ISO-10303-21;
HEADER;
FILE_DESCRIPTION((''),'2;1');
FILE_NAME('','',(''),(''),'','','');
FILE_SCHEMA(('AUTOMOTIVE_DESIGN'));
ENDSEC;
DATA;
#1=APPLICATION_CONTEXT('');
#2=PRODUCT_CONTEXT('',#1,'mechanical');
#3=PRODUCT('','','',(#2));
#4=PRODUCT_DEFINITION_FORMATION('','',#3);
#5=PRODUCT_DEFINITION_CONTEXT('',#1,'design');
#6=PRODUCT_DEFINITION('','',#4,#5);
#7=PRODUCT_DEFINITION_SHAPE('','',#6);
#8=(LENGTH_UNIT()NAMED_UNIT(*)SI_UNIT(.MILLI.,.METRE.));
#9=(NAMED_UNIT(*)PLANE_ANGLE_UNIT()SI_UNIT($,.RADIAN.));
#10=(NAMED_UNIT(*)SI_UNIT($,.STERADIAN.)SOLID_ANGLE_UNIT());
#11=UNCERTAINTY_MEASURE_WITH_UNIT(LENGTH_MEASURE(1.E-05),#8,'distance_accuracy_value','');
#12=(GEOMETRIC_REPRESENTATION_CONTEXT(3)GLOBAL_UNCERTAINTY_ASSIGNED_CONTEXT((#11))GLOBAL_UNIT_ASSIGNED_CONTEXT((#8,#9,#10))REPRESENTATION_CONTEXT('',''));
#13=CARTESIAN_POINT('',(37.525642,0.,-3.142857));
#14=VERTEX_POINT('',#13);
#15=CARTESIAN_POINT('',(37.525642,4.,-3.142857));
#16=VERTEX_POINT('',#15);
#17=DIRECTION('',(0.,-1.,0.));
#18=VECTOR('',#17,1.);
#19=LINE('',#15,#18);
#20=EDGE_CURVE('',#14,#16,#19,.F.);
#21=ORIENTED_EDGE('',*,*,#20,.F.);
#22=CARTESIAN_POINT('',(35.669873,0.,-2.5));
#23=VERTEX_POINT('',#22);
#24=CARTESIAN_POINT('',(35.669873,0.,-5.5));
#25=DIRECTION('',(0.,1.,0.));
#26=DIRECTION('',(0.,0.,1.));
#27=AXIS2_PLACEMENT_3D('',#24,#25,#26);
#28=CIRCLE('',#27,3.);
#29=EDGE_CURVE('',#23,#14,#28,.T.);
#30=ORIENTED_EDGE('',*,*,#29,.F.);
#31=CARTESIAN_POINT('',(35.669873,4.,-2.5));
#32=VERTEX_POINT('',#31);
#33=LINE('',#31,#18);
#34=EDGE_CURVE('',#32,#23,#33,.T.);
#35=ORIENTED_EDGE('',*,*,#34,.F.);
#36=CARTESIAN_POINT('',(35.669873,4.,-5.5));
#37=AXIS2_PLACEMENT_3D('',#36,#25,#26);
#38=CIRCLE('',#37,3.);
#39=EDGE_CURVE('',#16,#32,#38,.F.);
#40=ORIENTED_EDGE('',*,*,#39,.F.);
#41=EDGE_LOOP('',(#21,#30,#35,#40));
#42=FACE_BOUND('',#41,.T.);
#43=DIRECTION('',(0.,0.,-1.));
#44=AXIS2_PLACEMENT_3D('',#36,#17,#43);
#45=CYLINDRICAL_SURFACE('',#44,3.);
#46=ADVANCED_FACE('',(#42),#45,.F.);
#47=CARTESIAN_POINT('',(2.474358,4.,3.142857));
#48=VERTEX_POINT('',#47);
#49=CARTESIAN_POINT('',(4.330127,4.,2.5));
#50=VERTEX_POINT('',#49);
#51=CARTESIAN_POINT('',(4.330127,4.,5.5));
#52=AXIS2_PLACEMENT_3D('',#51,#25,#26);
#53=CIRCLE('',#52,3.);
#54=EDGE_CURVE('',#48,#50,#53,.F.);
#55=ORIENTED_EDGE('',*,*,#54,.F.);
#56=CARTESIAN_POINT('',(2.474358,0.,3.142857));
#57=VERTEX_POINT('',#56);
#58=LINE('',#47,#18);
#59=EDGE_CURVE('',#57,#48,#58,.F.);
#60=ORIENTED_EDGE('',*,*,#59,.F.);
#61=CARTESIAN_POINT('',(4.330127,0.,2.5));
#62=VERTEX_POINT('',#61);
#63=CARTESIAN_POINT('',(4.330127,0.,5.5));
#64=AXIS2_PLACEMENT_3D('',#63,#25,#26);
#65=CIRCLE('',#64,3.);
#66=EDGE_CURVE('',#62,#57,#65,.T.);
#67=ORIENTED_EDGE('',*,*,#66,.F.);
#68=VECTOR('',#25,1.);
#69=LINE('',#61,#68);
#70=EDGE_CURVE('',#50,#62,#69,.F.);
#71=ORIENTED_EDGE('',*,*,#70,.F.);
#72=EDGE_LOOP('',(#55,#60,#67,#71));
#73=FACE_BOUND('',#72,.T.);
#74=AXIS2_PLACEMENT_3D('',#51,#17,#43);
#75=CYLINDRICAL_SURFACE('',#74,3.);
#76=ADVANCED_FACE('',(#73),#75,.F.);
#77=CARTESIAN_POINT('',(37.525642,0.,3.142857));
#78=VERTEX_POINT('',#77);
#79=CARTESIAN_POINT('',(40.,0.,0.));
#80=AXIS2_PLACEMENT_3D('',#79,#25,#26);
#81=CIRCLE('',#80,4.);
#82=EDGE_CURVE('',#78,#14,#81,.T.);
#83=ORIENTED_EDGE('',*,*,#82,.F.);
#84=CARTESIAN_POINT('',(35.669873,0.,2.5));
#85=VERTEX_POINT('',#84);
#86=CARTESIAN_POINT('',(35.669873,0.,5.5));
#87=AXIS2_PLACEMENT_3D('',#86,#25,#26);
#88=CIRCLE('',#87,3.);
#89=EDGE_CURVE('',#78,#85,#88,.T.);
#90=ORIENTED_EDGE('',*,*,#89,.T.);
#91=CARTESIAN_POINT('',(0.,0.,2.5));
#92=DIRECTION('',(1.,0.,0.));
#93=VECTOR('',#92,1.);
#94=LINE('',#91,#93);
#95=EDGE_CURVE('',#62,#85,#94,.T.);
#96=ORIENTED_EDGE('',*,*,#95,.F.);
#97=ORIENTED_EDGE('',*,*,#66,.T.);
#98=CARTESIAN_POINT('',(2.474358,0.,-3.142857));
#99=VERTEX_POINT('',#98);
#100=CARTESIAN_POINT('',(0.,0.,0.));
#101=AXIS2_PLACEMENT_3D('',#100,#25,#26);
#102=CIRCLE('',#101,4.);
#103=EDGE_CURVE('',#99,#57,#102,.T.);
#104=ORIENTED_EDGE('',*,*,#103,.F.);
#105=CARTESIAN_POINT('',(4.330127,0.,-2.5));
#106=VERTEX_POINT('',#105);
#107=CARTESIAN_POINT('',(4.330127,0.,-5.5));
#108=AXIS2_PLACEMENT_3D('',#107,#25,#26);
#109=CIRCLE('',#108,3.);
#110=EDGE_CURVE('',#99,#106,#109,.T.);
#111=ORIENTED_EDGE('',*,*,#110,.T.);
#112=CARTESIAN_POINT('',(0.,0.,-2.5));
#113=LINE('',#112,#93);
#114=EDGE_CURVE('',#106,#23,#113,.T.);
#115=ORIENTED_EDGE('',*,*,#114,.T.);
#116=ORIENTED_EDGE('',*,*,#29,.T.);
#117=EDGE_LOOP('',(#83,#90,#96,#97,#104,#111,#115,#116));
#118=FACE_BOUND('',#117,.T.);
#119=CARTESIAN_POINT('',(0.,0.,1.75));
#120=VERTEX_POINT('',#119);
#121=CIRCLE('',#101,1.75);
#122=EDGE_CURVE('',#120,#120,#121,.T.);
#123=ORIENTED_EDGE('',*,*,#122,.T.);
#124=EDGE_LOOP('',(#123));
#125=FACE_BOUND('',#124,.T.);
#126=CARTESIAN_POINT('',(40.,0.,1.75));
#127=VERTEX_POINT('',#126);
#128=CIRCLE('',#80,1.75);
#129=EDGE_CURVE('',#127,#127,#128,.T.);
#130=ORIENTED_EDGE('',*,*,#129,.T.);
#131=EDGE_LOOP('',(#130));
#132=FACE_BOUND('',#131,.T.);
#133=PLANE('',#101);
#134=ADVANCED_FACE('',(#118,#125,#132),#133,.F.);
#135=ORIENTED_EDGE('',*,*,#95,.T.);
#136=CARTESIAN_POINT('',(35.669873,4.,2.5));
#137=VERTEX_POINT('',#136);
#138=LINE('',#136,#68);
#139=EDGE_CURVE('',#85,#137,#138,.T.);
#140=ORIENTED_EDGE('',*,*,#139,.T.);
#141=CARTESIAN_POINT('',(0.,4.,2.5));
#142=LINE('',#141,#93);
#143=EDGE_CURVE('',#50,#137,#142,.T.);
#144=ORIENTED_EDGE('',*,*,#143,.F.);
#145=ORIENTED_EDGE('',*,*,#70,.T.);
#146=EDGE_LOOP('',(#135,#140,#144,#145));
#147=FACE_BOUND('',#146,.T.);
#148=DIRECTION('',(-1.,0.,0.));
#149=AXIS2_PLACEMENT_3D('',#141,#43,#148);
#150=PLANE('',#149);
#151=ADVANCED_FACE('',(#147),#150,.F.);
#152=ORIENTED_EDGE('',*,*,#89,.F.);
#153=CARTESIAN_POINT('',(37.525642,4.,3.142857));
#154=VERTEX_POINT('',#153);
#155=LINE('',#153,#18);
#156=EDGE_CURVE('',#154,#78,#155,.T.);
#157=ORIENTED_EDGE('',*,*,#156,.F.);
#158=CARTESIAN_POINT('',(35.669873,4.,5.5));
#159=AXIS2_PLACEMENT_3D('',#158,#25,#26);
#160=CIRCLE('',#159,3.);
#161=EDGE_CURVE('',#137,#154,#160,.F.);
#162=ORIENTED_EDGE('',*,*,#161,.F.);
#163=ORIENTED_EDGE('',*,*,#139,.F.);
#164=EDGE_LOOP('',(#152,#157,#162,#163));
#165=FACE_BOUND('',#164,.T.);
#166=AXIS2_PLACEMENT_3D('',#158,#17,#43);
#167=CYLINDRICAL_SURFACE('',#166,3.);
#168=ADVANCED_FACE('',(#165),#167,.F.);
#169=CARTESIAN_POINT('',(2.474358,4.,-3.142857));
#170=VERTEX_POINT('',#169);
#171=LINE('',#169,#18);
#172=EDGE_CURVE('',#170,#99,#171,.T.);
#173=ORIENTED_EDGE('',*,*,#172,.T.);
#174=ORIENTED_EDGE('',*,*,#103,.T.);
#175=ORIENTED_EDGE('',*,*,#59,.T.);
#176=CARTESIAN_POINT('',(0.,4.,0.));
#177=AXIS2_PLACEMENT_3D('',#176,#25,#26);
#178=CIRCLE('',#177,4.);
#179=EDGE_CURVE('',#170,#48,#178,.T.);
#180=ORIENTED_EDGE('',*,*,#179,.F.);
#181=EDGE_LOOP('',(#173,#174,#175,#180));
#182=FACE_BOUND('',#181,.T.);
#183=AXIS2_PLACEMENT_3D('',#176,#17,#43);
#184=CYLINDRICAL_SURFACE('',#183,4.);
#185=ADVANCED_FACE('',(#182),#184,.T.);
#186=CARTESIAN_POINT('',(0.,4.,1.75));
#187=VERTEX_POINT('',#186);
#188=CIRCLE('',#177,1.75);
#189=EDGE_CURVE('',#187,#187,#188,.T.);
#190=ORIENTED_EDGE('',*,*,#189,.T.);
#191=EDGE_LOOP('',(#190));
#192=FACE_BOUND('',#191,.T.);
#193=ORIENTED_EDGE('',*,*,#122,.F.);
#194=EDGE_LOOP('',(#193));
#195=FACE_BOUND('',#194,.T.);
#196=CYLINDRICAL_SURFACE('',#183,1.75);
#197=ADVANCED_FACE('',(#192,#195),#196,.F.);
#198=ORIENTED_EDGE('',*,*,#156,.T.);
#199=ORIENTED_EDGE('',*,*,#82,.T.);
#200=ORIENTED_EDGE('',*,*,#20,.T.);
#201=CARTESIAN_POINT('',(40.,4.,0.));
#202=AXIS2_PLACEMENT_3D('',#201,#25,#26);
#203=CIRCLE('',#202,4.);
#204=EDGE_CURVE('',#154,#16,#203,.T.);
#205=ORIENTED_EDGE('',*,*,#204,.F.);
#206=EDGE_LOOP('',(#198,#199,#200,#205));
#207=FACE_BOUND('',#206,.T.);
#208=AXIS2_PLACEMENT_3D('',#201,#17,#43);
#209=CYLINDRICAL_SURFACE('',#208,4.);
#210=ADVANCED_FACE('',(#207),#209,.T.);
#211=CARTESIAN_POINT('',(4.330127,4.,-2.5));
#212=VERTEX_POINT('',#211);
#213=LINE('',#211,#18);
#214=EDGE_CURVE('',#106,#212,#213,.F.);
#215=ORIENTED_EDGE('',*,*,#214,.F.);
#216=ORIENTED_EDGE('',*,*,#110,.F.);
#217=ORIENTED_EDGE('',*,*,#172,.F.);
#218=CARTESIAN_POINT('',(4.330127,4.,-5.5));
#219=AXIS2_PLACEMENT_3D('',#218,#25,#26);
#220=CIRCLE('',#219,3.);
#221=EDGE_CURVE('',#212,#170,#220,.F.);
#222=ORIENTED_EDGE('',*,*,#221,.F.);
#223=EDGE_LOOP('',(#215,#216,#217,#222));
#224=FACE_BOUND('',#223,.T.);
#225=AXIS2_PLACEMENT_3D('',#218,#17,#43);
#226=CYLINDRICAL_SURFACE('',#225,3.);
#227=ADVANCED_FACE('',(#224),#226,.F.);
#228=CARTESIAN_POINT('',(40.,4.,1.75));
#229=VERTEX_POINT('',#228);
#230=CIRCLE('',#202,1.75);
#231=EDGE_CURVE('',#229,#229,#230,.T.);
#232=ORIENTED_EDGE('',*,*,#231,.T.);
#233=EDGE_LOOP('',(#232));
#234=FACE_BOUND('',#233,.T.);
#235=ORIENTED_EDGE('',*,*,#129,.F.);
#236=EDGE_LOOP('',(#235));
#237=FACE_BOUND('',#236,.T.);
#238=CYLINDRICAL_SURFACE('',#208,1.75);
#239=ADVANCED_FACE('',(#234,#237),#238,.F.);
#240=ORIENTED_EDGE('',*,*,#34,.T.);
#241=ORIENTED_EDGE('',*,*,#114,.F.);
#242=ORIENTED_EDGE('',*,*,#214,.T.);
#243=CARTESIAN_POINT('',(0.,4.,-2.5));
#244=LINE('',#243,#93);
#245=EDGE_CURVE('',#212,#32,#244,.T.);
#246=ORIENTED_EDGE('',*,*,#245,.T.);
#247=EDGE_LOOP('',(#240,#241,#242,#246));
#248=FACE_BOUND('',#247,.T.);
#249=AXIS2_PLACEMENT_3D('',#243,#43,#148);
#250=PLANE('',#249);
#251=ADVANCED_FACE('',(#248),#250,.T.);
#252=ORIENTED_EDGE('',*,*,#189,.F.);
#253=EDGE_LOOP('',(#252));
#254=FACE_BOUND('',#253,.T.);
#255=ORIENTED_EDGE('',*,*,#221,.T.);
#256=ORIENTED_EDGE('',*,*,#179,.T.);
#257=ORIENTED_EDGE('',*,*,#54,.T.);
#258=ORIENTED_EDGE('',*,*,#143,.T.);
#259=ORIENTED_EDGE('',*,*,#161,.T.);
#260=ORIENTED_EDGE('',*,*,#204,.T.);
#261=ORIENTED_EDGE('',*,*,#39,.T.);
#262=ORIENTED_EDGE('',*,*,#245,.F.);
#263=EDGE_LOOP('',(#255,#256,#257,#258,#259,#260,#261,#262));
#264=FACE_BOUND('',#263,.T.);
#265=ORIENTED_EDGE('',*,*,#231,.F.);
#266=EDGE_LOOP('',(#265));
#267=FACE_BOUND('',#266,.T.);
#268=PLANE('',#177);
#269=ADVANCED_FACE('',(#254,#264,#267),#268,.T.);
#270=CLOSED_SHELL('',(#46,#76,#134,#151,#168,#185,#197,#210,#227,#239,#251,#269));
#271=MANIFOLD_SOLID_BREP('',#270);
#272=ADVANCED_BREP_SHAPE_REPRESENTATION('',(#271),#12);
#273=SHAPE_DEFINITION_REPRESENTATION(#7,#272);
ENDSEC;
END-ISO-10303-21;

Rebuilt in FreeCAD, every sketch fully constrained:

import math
import FreeCAD as App
import Part
import Sketcher

V = App.Vector
Q = App.Units.Quantity


def edges_at(feature, points):
    """Names of the edges that pass closest to the given points."""
    edges = feature.Shape.Edges
    near = lambda p: min(range(len(edges)), key=lambda i: edges[i].distToShape(Part.Vertex(*p))[0])
    return sorted({f"Edge{near(p) + 1}" for p in points})

doc = App.newDocument("Part")
params = doc.addObject("Spreadsheet::Sheet", "Params")
for row, (alias, value) in enumerate([
    ("sketch1_radius", "4 mm"),
    ("sketch1_diameter", "3.5 mm"),
    ("pad1_length", "4 mm"),
    ("fillet_radius", "3 mm"),
], start=1):
    params.set(f"A{row}", alias)
    params.set(f"B{row}", "=" + value)
    params.setAlias(f"B{row}", alias)

body = doc.addObject("PartDesign::Body", "Body")

sketch1 = doc.addObject("Sketcher::SketchObject", "Sketch")
body.addObject(sketch1)
sketch1.AttachmentSupport = (doc.XZ_Plane, [""])
sketch1.MapMode = "FlatFace"
sketch1.addGeometry([
    Part.ArcOfCircle(Part.Circle(V(0, 0, 0), V(0, 0, 1), 4), math.radians(39), math.radians(321)),
    Part.LineSegment(V(3.1, 2.5, 0), V(36.9, 2.5, 0)),
    Part.ArcOfCircle(Part.Circle(V(40, 0, 0), V(0, 0, 1), 4), math.radians(-141), math.radians(141)),
    Part.LineSegment(V(36.9, -2.5, 0), V(3.1, -2.5, 0)),
    Part.Circle(V(0, 0, 0), V(0, 0, 1), 1.8),
    Part.Circle(V(40, 0, 0), V(0, 0, 1), 1.8),
], False)
sketch1.addConstraint([
    Sketcher.Constraint("Coincident", 0, 1, 1, 1),
    Sketcher.Constraint("Coincident", 1, 2, 2, 2),
    Sketcher.Constraint("Coincident", 2, 1, 3, 1),
    Sketcher.Constraint("Coincident", 3, 2, 0, 2),
    Sketcher.Constraint("Horizontal", 1),
    Sketcher.Constraint("Horizontal", 3),
    Sketcher.Constraint("Coincident", 0, 3, -1, 1),
    Sketcher.Constraint("Coincident", 4, 3, -1, 1),
    Sketcher.Constraint("Coincident", 5, 3, 2, 3),
    Sketcher.Constraint("Equal", 0, 2),
    Sketcher.Constraint("Equal", 4, 5),
    Sketcher.Constraint("Symmetric", 1, 2, 2, 1, -1),
    Sketcher.Constraint("Radius", 0, Q("4 mm")),
    Sketcher.Constraint("Diameter", 4, Q("3.5 mm")),
    Sketcher.Constraint("DistanceX", -1, 1, 2, 3, Q("40 mm")),
    Sketcher.Constraint("DistanceY", 2, 1, 1, 2, Q("5 mm")),
])
sketch1.setExpression("Constraints[12]", "Params.sketch1_radius")
sketch1.setExpression("Constraints[13]", "Params.sketch1_diameter")
pad1 = doc.addObject("PartDesign::Pad", "Pad")
body.addObject(pad1)
pad1.Profile = sketch1
pad1.setExpression("Length", "Params.pad1_length")
pad1.Reversed = True
doc.recompute()

fillet = doc.addObject("PartDesign::Fillet", "Fillet")
body.addObject(fillet)
fillet.Base = (pad1, edges_at(pad1, [
    (36.878, 2, 2.5),
    (3.122, 2, 2.5),
    (3.122, 2, -2.5),
    (36.878, 2, -2.5),
]))
fillet.setExpression("Radius", "Params.fillet_radius")

doc.recompute()
